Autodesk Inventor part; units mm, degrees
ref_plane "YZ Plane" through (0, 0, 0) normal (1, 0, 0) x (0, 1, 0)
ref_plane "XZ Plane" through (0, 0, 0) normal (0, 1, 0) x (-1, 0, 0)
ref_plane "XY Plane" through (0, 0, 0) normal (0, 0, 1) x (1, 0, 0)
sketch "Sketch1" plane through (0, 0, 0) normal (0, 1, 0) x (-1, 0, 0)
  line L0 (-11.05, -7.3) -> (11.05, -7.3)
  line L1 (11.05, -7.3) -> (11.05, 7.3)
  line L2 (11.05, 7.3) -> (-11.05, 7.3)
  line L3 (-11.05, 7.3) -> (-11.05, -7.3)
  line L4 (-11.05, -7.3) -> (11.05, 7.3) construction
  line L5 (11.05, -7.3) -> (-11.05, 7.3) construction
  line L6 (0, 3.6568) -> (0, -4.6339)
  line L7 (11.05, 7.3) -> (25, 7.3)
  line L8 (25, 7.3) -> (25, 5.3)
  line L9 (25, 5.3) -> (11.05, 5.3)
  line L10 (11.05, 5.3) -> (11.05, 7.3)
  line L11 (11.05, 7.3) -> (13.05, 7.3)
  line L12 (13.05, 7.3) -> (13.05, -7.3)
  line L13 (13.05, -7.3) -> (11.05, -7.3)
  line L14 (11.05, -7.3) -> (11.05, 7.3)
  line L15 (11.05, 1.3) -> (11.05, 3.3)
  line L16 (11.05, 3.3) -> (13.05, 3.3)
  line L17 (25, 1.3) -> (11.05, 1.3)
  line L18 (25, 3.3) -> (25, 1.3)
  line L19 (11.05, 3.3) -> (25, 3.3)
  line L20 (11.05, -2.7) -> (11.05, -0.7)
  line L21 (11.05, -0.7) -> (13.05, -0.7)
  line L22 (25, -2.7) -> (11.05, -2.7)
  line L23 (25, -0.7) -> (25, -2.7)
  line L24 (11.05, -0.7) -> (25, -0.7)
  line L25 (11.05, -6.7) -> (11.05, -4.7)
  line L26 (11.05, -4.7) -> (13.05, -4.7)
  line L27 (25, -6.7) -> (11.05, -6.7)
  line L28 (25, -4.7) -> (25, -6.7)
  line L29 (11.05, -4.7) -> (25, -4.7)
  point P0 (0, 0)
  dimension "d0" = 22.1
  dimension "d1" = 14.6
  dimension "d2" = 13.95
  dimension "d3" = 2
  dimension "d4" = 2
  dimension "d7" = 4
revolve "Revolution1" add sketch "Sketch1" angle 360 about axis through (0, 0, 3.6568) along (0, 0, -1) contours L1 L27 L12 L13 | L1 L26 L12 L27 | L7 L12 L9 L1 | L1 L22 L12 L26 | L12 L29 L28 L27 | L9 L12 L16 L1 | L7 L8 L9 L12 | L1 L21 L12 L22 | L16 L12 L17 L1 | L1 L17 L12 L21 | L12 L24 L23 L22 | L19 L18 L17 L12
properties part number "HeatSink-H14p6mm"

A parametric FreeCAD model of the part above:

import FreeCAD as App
import Part
import Sketcher


def add_polygon(sketch, points):
    """Adds a closed chain of lines whose ends are joined by coincident constraints."""
    first, n = sketch.GeometryCount, len(points)
    for a, b in zip(points, points[1:] + points[:1]):
        sketch.addGeometry(Part.LineSegment(App.Vector(*a, 0), App.Vector(*b, 0)), False)
    for i in range(n):
        sketch.addConstraint(Sketcher.Constraint("Coincident", first + i, 2, first + (i + 1) % n, 1))

doc = App.newDocument("Part")
params = doc.addObject("Spreadsheet::Sheet", "Params")
for row, (alias, value) in enumerate([
    ("sketch1_width", "2 mm"),
    ("sketch1_height", "14.6 mm"),
    ("sketch1_width2", "13.95 mm"),
    ("revolution_angle", "360 deg"),
], start=1):
    params.set(f"A{row}", alias)
    params.set(f"B{row}", "=" + value)
    params.setAlias(f"B{row}", alias)

body = doc.addObject("PartDesign::Body", "Body")

# Sketch on XZ plane
sketch1 = body.newObject("Sketcher::SketchObject", "Sketch")
sketch1.AttachmentSupport = (doc.getObject("XZ_Plane"), [""])
sketch1.MapMode = "FlatFace"
add_polygon(sketch1, [(-11.05, -7.3), (-13.05, -7.3), (-13.05, -6.7), (-25, -6.7), (-25, -4.7), (-13.05, -4.7), (-13.05, -2.7), (-25, -2.7), (-25, -0.7), (-13.05, -0.7), (-13.05, 1.3), (-25, 1.3), (-25, 3.3), (-13.05, 3.3), (-13.05, 5.3), (-25, 5.3), (-25, 7.3), (-11.05, 7.3)])  # lines 0-17
sketch1.addConstraint([
    Sketcher.Constraint("Horizontal", 0),
    Sketcher.Constraint("Vertical", 1),
    Sketcher.Constraint("Horizontal", 2),
    Sketcher.Constraint("Vertical", 3),
    Sketcher.Constraint("Horizontal", 4),
    Sketcher.Constraint("Vertical", 5),
    Sketcher.Constraint("Horizontal", 6),
    Sketcher.Constraint("Vertical", 7),
    Sketcher.Constraint("Horizontal", 8),
    Sketcher.Constraint("Vertical", 9),
    Sketcher.Constraint("Horizontal", 10),
    Sketcher.Constraint("Vertical", 11),
    Sketcher.Constraint("Horizontal", 12),
    Sketcher.Constraint("Vertical", 13),
    Sketcher.Constraint("Horizontal", 14),
    Sketcher.Constraint("Vertical", 15),
    Sketcher.Constraint("Horizontal", 16),
    Sketcher.Constraint("Vertical", 17),
    Sketcher.Constraint("Vertical", 1, 2, 4, 2),
    Sketcher.Constraint("Vertical", 3, 2, 6, 2),
    Sketcher.Constraint("Vertical", 5, 2, 8, 2),
    Sketcher.Constraint("Vertical", 7, 2, 10, 2),
    Sketcher.Constraint("Vertical", 9, 2, 12, 2),
    Sketcher.Constraint("Vertical", 11, 2, 14, 2),
    Sketcher.Constraint("Equal", 0, 3),
    Sketcher.Constraint("Equal", 3, 5),
    Sketcher.Constraint("Equal", 5, 7),
    Sketcher.Constraint("Equal", 7, 9),
    Sketcher.Constraint("Equal", 9, 11),
    Sketcher.Constraint("Equal", 11, 13),
    Sketcher.Constraint("Equal", 13, 15),
    Sketcher.Constraint("DistanceX", 0, 2, 0, 1, 2.0),
    Sketcher.Constraint("DistanceY", 17, 2, 17, 1, 14.6),
    Sketcher.Constraint("DistanceX", 16, 1, 16, 2, 13.95),
    Sketcher.Constraint("DistanceX", 2, 2, -1, 1, 25.0),
    Sketcher.Constraint("DistanceY", 0, 2, -1, 1, 7.3),
])
sketch1.setExpression("Constraints[49]", "Params.sketch1_width")
sketch1.setExpression("Constraints[50]", "Params.sketch1_height")
sketch1.setExpression("Constraints[51]", "Params.sketch1_width2")
revolution = body.newObject("PartDesign::Revolution", "Revolution")
revolution.Profile = sketch1
revolution.ReferenceAxis = (sketch1, ["V_Axis"])
revolution.setExpression("Angle", "Params.revolution_angle")

doc.recompute()
